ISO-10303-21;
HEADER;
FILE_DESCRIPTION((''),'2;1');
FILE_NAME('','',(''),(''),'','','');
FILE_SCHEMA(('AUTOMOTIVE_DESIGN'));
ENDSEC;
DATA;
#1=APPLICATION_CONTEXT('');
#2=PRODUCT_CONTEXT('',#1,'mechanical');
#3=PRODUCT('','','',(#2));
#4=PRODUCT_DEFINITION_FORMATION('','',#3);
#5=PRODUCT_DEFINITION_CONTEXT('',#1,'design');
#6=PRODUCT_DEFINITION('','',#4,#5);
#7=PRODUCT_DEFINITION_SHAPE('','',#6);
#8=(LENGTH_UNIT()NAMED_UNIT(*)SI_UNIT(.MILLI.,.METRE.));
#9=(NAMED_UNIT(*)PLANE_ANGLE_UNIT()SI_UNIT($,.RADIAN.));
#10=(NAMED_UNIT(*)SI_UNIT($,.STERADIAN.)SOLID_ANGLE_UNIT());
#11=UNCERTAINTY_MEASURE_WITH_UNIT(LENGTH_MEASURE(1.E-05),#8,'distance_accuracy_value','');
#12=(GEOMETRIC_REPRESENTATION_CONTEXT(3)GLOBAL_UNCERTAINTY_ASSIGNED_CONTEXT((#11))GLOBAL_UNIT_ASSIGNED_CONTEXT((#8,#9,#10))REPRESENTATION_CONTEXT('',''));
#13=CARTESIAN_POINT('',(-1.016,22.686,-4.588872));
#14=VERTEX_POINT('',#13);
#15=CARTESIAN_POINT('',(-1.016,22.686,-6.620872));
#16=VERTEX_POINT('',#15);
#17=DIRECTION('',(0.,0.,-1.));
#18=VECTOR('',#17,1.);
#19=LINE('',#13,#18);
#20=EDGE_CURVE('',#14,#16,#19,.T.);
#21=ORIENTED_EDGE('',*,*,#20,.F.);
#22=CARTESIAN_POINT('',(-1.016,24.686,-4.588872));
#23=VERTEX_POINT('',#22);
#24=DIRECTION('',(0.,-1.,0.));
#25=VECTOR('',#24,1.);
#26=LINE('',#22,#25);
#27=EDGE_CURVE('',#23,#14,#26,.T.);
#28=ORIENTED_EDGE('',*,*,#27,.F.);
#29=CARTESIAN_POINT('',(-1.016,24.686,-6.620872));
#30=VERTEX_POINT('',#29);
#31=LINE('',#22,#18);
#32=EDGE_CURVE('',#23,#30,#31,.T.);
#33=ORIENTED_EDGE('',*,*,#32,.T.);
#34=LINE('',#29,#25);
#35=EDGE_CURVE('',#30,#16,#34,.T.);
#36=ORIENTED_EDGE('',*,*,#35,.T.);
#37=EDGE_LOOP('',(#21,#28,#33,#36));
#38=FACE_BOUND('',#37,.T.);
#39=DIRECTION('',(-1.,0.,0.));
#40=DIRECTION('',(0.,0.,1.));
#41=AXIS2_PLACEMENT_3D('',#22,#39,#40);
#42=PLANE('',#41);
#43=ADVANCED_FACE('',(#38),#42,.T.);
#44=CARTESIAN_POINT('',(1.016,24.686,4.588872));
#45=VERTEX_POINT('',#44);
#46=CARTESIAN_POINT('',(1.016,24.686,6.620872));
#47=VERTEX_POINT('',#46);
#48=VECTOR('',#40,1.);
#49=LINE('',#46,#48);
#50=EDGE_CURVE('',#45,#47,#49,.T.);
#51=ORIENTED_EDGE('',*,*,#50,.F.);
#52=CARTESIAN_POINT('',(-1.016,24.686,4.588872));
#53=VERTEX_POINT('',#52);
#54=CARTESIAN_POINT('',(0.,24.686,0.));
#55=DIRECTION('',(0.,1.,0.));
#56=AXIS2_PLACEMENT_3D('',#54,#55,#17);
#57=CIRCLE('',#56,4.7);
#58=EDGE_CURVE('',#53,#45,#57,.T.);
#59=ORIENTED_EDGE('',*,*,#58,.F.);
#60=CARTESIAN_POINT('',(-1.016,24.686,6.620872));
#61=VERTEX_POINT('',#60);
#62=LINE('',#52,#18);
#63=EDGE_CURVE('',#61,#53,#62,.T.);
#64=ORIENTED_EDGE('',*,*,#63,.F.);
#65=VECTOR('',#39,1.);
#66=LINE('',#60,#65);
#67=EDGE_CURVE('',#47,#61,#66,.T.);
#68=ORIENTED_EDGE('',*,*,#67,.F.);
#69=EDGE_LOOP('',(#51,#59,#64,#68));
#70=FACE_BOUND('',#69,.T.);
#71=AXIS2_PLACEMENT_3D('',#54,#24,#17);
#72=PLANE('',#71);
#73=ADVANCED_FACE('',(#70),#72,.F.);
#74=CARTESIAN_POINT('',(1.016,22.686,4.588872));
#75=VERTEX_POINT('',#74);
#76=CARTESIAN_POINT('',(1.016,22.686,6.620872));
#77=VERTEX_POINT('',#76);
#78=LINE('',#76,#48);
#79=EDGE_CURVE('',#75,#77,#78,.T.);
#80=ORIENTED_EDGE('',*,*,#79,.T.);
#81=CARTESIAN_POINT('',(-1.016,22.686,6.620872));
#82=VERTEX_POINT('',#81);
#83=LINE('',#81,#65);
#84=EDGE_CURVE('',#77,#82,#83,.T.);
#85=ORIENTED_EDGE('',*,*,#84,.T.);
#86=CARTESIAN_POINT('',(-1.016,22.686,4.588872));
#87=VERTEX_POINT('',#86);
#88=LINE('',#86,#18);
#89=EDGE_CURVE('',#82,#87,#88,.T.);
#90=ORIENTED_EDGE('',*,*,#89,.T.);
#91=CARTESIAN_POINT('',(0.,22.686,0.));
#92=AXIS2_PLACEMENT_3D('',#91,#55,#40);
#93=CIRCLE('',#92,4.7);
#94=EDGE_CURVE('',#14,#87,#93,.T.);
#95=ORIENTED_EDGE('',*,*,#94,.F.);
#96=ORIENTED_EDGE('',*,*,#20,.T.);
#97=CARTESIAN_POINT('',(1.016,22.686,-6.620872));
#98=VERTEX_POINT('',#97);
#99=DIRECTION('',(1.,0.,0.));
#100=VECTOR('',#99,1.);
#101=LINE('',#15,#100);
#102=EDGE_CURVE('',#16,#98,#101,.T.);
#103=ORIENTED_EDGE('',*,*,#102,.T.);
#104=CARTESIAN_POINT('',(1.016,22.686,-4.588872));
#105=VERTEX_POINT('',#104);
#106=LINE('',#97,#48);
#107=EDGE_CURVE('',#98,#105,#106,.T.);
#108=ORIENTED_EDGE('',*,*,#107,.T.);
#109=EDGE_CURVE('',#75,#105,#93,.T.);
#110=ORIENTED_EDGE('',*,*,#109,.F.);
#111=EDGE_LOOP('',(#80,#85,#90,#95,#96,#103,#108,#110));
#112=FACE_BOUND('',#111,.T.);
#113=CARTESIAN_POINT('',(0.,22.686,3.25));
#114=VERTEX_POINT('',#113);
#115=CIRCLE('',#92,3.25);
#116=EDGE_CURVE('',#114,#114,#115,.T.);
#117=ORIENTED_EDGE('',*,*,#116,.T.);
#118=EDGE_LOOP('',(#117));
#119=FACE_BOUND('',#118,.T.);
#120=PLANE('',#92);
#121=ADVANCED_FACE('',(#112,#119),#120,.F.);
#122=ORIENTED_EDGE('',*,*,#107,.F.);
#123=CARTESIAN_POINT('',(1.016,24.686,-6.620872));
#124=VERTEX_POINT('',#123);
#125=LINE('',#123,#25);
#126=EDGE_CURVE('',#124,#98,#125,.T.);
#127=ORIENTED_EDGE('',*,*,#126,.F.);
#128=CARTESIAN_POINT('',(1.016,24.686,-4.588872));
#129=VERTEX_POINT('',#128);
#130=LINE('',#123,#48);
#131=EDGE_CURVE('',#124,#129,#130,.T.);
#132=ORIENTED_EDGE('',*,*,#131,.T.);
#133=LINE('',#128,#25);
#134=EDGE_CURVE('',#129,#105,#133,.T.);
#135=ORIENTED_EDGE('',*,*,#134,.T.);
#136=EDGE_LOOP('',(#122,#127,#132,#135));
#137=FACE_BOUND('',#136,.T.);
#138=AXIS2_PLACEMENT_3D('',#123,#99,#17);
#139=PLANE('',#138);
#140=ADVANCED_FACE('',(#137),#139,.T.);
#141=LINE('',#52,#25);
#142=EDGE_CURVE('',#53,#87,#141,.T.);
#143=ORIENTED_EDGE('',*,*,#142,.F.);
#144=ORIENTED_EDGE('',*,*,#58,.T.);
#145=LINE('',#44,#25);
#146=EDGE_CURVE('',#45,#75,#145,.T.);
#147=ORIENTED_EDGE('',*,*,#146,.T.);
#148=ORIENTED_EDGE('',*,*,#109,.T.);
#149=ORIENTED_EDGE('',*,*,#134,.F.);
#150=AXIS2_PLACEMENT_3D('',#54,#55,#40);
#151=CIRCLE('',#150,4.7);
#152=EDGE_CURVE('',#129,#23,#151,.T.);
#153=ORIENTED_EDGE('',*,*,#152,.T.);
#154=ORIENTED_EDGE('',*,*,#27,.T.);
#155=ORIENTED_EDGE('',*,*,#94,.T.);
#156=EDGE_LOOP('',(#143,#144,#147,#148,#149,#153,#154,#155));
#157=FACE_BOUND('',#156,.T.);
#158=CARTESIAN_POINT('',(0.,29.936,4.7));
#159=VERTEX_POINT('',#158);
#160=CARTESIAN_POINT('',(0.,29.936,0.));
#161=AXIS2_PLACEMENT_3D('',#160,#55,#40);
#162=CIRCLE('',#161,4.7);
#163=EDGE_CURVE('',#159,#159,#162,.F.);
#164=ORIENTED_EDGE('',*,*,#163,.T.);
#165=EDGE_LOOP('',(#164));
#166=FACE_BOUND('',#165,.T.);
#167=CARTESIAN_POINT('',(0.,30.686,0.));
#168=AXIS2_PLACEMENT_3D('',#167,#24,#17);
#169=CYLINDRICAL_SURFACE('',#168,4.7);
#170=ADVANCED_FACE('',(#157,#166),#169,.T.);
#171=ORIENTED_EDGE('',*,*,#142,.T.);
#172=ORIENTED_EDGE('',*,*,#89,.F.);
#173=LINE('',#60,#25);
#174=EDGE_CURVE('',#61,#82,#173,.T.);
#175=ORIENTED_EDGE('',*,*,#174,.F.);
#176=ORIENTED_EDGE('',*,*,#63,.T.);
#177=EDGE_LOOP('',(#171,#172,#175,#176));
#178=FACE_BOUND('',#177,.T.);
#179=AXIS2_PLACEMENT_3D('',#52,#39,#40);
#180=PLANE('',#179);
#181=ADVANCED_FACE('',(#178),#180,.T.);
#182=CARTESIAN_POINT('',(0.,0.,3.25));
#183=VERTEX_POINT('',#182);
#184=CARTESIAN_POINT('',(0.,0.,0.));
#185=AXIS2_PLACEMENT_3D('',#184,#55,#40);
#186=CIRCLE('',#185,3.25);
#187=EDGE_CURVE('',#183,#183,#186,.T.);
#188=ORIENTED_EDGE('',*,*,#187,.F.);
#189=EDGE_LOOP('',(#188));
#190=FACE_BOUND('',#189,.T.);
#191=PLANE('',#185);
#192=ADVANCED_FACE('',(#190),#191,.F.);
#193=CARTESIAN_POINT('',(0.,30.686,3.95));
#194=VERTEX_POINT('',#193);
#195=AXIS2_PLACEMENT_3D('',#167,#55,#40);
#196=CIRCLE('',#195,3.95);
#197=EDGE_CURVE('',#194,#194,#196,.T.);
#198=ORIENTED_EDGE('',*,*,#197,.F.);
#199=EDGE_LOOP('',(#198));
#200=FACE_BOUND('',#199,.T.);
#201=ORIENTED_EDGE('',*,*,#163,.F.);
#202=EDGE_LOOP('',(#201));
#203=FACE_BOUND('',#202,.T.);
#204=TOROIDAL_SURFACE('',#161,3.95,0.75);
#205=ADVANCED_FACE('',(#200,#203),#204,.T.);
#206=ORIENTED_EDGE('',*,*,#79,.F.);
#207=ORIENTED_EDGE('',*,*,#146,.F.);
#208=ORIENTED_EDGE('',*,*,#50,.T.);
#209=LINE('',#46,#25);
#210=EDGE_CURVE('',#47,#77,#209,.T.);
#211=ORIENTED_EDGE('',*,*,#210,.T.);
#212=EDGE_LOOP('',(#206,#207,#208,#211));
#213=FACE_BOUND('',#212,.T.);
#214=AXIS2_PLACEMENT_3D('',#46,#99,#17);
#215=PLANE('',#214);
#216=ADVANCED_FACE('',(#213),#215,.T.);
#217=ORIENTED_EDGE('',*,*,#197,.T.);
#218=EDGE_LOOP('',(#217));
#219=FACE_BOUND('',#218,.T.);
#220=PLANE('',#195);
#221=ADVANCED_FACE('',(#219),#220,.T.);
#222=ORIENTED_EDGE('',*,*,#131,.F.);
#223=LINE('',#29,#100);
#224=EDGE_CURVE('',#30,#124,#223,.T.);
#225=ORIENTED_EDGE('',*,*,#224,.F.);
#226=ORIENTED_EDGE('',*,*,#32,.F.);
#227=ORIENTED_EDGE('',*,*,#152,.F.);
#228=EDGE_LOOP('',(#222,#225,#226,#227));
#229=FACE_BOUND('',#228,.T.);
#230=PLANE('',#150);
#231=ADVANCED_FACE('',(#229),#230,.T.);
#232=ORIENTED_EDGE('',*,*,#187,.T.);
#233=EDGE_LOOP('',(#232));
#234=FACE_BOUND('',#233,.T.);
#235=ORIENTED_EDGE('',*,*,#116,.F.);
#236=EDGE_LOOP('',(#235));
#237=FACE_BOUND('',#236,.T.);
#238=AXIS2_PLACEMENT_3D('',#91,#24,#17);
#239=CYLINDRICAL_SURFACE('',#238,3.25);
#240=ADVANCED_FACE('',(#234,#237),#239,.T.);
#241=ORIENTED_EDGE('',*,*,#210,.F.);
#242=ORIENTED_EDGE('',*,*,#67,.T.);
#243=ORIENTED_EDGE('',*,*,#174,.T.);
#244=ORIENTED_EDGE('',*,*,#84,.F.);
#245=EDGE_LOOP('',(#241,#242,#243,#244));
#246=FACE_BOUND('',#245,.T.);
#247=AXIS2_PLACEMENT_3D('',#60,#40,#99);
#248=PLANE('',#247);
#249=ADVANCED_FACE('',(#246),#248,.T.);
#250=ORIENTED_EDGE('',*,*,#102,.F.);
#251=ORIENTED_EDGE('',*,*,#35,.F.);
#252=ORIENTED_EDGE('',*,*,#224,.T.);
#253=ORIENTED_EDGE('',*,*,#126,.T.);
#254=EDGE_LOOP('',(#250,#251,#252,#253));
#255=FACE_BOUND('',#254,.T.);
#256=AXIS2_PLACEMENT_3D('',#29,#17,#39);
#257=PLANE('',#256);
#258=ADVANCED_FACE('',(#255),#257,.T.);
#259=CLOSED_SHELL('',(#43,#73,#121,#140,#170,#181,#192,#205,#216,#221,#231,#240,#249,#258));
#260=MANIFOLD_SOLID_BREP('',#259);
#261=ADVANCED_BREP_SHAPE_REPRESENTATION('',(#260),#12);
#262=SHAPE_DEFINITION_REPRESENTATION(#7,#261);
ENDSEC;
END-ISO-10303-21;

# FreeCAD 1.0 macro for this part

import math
import FreeCAD as App
import Part
import Sketcher


def edges_at(feature, points):
    """Names of the edges that pass closest to the given points."""
    edges = feature.Shape.Edges
    near = lambda p: min(range(len(edges)), key=lambda i: edges[i].distToShape(Part.Vertex(*p))[0])
    return sorted({f"Edge{near(p) + 1}" for p in points})

doc = App.newDocument("Part")
body = doc.addObject("PartDesign::Body", "Body")

sketch1 = doc.addObject("Sketcher::SketchObject", "Sketch")
body.addObject(sketch1)
sketch1.AttachmentSupport = (doc.XZ_Plane, [""])
sketch1.MapMode = "FlatFace"
sketch1.addGeometry(Part.Circle(App.Vector(0, 0, 0), App.Vector(0, 0, 1), 3.2), False)
sketch1.addConstraint([
    Sketcher.Constraint("Coincident", 0, 3, -1, 1),
    Sketcher.Constraint("Diameter", 0, 6.5),
])
pad1 = doc.addObject("PartDesign::Pad", "Pad")
body.addObject(pad1)
pad1.Profile = sketch1
pad1.Length = 22.686
pad1.Reversed = True

sketch2 = doc.addObject("Sketcher::SketchObject", "Sketch001")
body.addObject(sketch2)
sketch2.AttachmentSupport = (doc.XZ_Plane, [""])
sketch2.MapMode = "FlatFace"
sketch2.AttachmentOffset = App.Placement(App.Vector(0, 0, -22.686), App.Rotation())
sketch2.addGeometry(Part.Circle(App.Vector(0, 0, 0), App.Vector(0, 0, 1), 4.7), False)
sketch2.addConstraint([
    Sketcher.Constraint("Coincident", 0, 3, -1, 1),
    Sketcher.Constraint("Diameter", 0, 9.4),
])
pad2 = doc.addObject("PartDesign::Pad", "Pad001")
body.addObject(pad2)
pad2.Profile = sketch2
pad2.Length = 8
pad2.Reversed = True
doc.recompute()

fillet = doc.addObject("PartDesign::Fillet", "Fillet")
body.addObject(fillet)
fillet.Base = (pad2, edges_at(pad2, [(-4.7, 30.686, 0)]))
fillet.Radius = 0.75

sketch3 = doc.addObject("Sketcher::SketchObject", "Sketch002")
body.addObject(sketch3)
sketch3.AttachmentSupport = (doc.XZ_Plane, [""])
sketch3.MapMode = "FlatFace"
sketch3.AttachmentOffset = App.Placement(App.Vector(0, 0, -22.686), App.Rotation())
sketch3.addGeometry([
    Part.LineSegment(App.Vector(-1, 6.6, 0), App.Vector(-1, 4.6, 0)),
    Part.ArcOfCircle(Part.Circle(App.Vector(0, 0, 0), App.Vector(0, 0, 1), 4.7), math.radians(78), math.radians(102)),
    Part.LineSegment(App.Vector(1, 4.6, 0), App.Vector(1, 6.6, 0)),
    Part.LineSegment(App.Vector(1, 6.6, 0), App.Vector(-1, 6.6, 0)),
    Part.LineSegment(App.Vector(1, -6.6, 0), App.Vector(1, -4.6, 0)),
    Part.ArcOfCircle(Part.Circle(App.Vector(0, 0, 0), App.Vector(0, 0, 1), 4.7), math.radians(-102), math.radians(-78)),
    Part.LineSegment(App.Vector(-1, -4.6, 0), App.Vector(-1, -6.6, 0)),
    Part.LineSegment(App.Vector(-1, -6.6, 0), App.Vector(1, -6.6, 0)),
], False)
sketch3.addConstraint([
    Sketcher.Constraint("Coincident", 0, 2, 1, 2),
    Sketcher.Constraint("Coincident", 1, 1, 2, 1),
    Sketcher.Constraint("Coincident", 2, 2, 3, 1),
    Sketcher.Constraint("Coincident", 3, 2, 0, 1),
    Sketcher.Constraint("Coincident", 4, 2, 5, 2),
    Sketcher.Constraint("Coincident", 5, 1, 6, 1),
    Sketcher.Constraint("Coincident", 6, 2, 7, 1),
    Sketcher.Constraint("Coincident", 7, 2, 4, 1),
    Sketcher.Constraint("Vertical", 0),
    Sketcher.Constraint("Vertical", 2),
    Sketcher.Constraint("Horizontal", 3),
    Sketcher.Constraint("Vertical", 4),
    Sketcher.Constraint("Vertical", 6),
    Sketcher.Constraint("Horizontal", 7),
    Sketcher.Constraint("Coincident", 1, 3, -1, 1),
    Sketcher.Constraint("Coincident", 5, 3, -1, 1),
    Sketcher.Constraint("Equal", 1, 5),
    Sketcher.Constraint("Symmetric", 2, 2, 6, 2, -1, 1),
    Sketcher.Constraint("Horizontal", 0, 2, 1, 1),
    Sketcher.Constraint("Horizontal", 4, 2, 5, 1),
    Sketcher.Constraint("Equal", 7, 0),
    Sketcher.Constraint("Radius", 1, 4.7),
    Sketcher.Constraint("DistanceX", 3, 2, 3, 1, 2.032),
])
pad3 = doc.addObject("PartDesign::Pad", "Pad002")
body.addObject(pad3)
pad3.Profile = sketch3
pad3.Length = 2
pad3.Reversed = True

doc.recompute()
